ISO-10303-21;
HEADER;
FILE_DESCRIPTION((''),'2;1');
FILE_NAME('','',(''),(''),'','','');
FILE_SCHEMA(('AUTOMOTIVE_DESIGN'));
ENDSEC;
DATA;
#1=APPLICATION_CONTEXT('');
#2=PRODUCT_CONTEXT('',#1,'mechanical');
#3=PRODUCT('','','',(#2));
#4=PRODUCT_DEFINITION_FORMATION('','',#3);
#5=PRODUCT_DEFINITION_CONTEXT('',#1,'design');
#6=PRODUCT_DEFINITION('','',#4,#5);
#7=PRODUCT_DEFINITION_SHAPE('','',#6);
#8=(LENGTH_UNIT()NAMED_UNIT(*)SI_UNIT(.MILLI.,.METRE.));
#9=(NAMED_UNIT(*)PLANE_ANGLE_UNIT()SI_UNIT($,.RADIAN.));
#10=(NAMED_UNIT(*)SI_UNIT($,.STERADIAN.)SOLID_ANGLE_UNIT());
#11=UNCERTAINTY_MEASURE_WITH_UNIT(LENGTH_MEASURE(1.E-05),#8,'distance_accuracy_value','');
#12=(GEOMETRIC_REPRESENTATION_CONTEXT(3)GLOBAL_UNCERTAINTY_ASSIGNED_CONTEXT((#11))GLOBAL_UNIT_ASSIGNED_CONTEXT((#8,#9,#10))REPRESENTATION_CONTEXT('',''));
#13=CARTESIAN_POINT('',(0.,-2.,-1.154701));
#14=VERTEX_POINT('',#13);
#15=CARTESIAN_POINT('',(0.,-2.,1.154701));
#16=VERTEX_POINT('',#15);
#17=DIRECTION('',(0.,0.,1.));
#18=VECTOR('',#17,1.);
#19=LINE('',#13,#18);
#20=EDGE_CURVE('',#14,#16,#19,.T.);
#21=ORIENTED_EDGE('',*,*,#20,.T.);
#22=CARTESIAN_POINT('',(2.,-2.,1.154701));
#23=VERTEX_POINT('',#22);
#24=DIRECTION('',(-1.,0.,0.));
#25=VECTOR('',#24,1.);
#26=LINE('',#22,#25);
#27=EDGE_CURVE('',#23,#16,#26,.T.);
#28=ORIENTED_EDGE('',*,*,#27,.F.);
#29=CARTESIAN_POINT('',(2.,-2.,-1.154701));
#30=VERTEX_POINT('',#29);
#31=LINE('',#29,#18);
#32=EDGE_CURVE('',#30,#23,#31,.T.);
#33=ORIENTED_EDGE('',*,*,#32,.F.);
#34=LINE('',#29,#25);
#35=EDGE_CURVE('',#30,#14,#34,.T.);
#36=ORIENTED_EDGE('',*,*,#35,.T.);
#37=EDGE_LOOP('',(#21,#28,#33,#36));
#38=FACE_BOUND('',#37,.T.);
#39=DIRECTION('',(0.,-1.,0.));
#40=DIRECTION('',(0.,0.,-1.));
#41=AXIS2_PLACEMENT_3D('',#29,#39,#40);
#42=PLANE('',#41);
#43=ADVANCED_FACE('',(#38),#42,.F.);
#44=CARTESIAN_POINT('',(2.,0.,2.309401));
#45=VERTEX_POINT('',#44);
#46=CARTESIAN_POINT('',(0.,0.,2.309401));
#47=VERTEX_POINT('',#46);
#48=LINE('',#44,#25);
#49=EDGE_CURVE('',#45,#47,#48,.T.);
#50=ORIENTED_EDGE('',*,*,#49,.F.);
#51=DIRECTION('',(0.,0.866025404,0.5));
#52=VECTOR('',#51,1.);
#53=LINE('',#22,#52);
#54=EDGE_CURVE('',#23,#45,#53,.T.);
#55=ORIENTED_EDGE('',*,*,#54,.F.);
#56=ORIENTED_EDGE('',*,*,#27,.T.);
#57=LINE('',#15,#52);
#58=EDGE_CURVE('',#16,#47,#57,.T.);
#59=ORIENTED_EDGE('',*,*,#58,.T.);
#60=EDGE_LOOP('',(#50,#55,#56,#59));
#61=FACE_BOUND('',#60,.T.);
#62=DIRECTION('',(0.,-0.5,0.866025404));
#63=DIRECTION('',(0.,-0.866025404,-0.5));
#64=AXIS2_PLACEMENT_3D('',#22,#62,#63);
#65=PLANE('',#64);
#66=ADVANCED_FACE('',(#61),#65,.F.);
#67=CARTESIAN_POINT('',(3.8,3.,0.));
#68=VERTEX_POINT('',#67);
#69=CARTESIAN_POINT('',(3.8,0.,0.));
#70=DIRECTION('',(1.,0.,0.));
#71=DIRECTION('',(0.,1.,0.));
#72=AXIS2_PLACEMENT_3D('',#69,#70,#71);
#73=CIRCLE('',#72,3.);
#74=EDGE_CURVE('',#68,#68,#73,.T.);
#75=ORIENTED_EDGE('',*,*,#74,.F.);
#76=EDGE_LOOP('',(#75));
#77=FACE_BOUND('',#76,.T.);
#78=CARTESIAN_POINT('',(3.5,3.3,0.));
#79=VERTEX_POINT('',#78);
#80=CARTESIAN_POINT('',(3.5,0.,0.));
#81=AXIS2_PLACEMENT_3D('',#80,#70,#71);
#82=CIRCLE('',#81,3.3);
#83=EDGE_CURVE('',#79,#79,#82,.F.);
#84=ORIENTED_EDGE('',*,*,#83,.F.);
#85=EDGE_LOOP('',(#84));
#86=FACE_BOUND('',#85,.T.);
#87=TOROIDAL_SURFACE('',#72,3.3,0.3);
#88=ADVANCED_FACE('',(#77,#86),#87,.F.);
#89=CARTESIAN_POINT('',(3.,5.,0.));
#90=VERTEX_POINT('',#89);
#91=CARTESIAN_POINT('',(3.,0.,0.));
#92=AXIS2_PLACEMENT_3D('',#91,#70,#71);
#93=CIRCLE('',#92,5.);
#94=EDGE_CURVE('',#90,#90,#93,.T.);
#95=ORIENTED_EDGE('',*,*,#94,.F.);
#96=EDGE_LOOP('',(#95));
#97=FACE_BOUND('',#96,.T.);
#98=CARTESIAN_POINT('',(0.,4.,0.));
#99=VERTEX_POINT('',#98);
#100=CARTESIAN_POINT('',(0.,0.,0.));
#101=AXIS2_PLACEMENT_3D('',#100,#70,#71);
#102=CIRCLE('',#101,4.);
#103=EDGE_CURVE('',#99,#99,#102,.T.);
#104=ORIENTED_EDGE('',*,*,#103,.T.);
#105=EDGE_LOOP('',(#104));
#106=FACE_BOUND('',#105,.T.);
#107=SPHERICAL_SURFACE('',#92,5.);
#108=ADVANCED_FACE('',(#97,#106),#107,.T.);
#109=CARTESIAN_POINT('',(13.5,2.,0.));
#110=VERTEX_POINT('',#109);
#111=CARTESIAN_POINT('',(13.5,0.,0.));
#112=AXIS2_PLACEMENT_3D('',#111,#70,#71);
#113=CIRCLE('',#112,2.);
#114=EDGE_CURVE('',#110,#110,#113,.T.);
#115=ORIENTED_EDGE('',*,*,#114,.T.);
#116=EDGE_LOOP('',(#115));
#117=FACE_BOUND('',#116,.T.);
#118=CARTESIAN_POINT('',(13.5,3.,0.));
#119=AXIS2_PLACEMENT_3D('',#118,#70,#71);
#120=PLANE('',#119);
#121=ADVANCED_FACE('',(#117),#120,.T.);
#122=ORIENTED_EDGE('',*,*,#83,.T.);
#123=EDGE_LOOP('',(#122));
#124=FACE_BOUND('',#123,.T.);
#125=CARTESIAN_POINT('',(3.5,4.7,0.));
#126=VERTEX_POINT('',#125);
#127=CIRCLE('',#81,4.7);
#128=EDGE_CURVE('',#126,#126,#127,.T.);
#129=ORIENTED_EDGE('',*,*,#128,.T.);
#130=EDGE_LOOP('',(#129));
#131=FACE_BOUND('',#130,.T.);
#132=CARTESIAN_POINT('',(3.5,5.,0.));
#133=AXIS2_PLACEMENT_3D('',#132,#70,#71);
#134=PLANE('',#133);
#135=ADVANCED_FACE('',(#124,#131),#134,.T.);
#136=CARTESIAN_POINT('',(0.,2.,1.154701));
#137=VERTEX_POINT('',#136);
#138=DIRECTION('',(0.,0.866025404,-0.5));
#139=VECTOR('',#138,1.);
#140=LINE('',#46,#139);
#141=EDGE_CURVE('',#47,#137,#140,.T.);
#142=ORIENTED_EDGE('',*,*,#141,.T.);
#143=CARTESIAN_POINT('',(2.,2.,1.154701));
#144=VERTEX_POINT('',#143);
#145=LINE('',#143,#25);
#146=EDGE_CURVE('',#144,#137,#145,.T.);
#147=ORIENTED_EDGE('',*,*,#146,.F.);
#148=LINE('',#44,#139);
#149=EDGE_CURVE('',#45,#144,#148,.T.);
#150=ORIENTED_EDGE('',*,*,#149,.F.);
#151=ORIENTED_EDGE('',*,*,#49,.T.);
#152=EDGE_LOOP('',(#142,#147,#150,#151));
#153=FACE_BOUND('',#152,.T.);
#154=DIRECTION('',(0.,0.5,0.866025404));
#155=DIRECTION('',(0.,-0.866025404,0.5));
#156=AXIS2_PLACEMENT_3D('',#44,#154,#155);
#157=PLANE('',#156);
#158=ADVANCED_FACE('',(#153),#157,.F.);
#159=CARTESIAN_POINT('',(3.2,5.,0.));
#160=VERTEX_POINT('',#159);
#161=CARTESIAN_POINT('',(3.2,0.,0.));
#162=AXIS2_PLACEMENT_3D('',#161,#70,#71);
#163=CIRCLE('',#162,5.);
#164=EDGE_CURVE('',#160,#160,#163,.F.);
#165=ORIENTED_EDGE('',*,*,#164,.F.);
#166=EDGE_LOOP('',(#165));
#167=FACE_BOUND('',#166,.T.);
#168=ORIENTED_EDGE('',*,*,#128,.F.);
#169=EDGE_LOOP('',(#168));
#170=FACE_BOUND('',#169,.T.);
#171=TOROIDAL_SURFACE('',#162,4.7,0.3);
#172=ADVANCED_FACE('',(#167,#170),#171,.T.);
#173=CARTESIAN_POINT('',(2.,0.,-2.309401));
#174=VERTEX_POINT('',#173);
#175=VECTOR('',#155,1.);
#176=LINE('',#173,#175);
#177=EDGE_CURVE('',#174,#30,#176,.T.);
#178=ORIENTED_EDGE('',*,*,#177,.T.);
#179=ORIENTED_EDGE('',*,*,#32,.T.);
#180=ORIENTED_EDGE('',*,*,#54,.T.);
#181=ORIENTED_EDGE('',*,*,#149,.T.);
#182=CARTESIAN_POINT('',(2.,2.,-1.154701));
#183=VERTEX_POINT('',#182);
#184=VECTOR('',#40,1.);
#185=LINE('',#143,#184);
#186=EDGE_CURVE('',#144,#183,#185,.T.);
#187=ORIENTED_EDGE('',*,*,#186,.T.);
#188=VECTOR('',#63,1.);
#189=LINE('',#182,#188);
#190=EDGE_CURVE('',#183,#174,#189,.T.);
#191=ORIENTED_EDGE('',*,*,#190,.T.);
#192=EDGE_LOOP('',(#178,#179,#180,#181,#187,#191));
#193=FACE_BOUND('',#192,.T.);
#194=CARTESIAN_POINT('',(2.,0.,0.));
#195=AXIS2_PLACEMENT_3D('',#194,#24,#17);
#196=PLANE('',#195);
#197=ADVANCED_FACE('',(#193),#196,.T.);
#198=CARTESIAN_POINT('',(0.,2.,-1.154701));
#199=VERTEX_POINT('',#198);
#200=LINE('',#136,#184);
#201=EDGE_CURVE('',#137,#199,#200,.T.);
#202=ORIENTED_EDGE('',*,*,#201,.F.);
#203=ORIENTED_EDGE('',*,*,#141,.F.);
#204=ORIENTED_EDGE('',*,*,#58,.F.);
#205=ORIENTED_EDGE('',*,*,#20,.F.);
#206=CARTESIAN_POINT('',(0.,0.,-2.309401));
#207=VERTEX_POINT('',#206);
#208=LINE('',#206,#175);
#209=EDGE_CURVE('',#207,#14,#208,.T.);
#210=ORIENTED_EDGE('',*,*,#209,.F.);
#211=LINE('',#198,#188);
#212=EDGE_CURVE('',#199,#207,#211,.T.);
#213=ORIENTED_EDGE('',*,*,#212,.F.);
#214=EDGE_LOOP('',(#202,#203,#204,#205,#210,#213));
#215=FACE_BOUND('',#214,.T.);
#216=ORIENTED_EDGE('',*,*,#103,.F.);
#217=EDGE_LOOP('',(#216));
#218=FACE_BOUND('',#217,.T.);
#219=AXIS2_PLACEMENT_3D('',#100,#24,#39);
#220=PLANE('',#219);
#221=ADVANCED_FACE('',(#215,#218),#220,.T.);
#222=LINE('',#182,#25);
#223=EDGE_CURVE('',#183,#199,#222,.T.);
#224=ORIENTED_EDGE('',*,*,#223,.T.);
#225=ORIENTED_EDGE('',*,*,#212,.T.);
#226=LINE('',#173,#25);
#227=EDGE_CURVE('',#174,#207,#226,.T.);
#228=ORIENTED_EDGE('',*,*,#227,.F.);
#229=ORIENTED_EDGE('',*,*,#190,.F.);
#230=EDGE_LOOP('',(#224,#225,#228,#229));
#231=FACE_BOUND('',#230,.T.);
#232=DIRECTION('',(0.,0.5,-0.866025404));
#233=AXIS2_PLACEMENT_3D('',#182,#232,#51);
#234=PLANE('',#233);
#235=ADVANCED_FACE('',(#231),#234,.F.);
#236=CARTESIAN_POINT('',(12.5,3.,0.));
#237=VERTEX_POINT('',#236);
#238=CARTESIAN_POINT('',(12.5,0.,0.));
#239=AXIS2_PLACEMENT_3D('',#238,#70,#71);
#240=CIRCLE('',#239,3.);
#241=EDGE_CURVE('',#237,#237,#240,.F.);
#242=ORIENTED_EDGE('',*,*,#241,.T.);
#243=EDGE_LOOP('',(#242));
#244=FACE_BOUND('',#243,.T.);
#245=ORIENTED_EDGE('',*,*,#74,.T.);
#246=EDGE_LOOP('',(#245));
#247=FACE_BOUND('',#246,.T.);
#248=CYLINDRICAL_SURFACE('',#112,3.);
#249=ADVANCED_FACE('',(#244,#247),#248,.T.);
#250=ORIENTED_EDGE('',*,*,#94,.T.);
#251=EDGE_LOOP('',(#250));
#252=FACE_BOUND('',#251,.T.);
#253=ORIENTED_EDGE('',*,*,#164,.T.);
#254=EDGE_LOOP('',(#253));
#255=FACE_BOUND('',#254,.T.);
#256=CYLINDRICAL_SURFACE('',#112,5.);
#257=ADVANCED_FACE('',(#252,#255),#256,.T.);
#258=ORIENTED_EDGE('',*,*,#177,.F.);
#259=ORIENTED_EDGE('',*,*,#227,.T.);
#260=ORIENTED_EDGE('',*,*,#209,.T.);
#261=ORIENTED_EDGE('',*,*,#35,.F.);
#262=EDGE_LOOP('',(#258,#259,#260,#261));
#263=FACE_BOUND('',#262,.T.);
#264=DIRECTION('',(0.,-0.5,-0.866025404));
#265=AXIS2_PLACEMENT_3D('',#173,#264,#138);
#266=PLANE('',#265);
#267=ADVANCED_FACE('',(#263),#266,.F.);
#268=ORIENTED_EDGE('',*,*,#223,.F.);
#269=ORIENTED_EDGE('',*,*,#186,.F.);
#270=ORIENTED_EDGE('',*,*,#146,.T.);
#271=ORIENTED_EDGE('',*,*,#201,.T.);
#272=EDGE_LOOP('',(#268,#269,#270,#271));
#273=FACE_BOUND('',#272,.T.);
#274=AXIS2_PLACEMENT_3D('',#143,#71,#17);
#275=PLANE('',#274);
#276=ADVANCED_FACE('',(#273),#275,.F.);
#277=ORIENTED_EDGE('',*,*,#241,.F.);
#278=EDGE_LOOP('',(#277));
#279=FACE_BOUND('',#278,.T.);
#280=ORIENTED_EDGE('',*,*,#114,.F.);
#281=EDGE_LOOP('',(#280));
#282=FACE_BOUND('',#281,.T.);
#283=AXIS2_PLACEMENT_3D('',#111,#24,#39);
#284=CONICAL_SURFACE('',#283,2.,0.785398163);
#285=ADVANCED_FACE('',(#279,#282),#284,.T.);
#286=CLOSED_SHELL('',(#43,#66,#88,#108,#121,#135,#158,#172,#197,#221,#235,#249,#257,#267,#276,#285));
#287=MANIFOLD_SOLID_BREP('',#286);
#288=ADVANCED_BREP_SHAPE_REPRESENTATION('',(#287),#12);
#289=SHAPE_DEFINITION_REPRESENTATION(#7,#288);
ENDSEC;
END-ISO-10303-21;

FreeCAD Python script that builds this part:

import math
import FreeCAD as App
import Part
import Sketcher
Q = App.Units.Quantity


def edges_at(feature, points):
    """Names of the edges that pass closest to the given points."""
    edges = feature.Shape.Edges
    near = lambda p: min(range(len(edges)), key=lambda i: edges[i].distToShape(Part.Vertex(*p))[0])
    return sorted({f"Edge{near(p) + 1}" for p in points})

doc = App.newDocument("Part")
body = doc.addObject("PartDesign::Body", "Body")

sketch1 = body.newObject("Sketcher::SketchObject", "Sketch")
sketch1.AttachmentSupport = (doc.getObject("XY_Plane"), [""])
sketch1.MapMode = "FlatFace"
sketch1.addGeometry(Part.LineSegment(App.Vector(0, 4, 0), App.Vector(0, 0, 0)), False)
sketch1.addGeometry(Part.LineSegment(App.Vector(0, 0, 0), App.Vector(13.5, 0, 0)), False)
sketch1.addGeometry(Part.LineSegment(App.Vector(13.5, 0, 0), App.Vector(13.5, 3, 0)), False)
sketch1.addGeometry(Part.LineSegment(App.Vector(13.5, 3, 0), App.Vector(3.5, 3, 0)), False)
sketch1.addGeometry(Part.LineSegment(App.Vector(3.5, 3, 0), App.Vector(3.5, 5, 0)), False)
sketch1.addGeometry(Part.LineSegment(App.Vector(3.5, 5, 0), App.Vector(3, 5, 0)), False)
sketch1.addGeometry(Part.ArcOfCircle(Part.Circle(App.Vector(3, 0, 0), App.Vector(0, 0, 1), 5), math.radians(90), math.radians(126.869898)), False)
sketch1.addConstraint(Sketcher.Constraint("Coincident", 0, 2, 1, 1))
sketch1.addConstraint(Sketcher.Constraint("Coincident", 1, 2, 2, 1))
sketch1.addConstraint(Sketcher.Constraint("Coincident", 2, 2, 3, 1))
sketch1.addConstraint(Sketcher.Constraint("Coincident", 3, 2, 4, 1))
sketch1.addConstraint(Sketcher.Constraint("Coincident", 4, 2, 5, 1))
sketch1.addConstraint(Sketcher.Constraint("Tangent", 5, 2, 6, 1))
sketch1.addConstraint(Sketcher.Constraint("Coincident", 6, 2, 0, 1))
sketch1.addConstraint(Sketcher.Constraint("Vertical", 0))
sketch1.addConstraint(Sketcher.Constraint("Horizontal", 1))
sketch1.addConstraint(Sketcher.Constraint("Vertical", 2))
sketch1.addConstraint(Sketcher.Constraint("Horizontal", 3))
sketch1.addConstraint(Sketcher.Constraint("Vertical", 4))
sketch1.addConstraint(Sketcher.Constraint("Horizontal", 5))
sketch1.addConstraint(Sketcher.Constraint("Coincident", 0, 2, -1, 1))
sketch1.addConstraint(Sketcher.Constraint("PointOnObject", 6, 3, -1))
sketch1.addConstraint(Sketcher.Constraint("Radius", 6, Q("5 mm")))
sketch1.addConstraint(Sketcher.Constraint("DistanceX", 3, 2, 3, 1, Q("10 mm")))
sketch1.addConstraint(Sketcher.Constraint("DistanceY", 0, 2, 0, 1, Q("4 mm")))
sketch1.addConstraint(Sketcher.Constraint("DistanceY", 2, 1, 2, 2, Q("3 mm")))
sketch1.addConstraint(Sketcher.Constraint("DistanceX", 1, 1, 1, 2, Q("13.5 mm")))
revolution = body.newObject("PartDesign::Revolution", "Revolution")
revolution.Profile = sketch1
revolution.ReferenceAxis = (sketch1, ["H_Axis"])
revolution.Angle = 360

sketch2 = body.newObject("Sketcher::SketchObject", "Sketch001")
sketch2.AttachmentSupport = (doc.getObject("YZ_Plane"), [""])
sketch2.MapMode = "FlatFace"
sketch2.addGeometry(Part.LineSegment(App.Vector(2, 1.154701, 0), App.Vector(2, -1.154701, 0)), False)
sketch2.addGeometry(Part.LineSegment(App.Vector(2, -1.154701, 0), App.Vector(0, -2.309401, 0)), False)
sketch2.addGeometry(Part.LineSegment(App.Vector(0, -2.309401, 0), App.Vector(-2, -1.154701, 0)), False)
sketch2.addGeometry(Part.LineSegment(App.Vector(-2, -1.154701, 0), App.Vector(-2, 1.154701, 0)), False)
sketch2.addGeometry(Part.LineSegment(App.Vector(-2, 1.154701, 0), App.Vector(0, 2.309401, 0)), False)
sketch2.addGeometry(Part.LineSegment(App.Vector(0, 2.309401, 0), App.Vector(2, 1.154701, 0)), False)
sketch2.addConstraint(Sketcher.Constraint("Coincident", 0, 2, 1, 1))
sketch2.addConstraint(Sketcher.Constraint("Coincident", 1, 2, 2, 1))
sketch2.addConstraint(Sketcher.Constraint("Coincident", 2, 2, 3, 1))
sketch2.addConstraint(Sketcher.Constraint("Coincident", 3, 2, 4, 1))
sketch2.addConstraint(Sketcher.Constraint("Coincident", 4, 2, 5, 1))
sketch2.addConstraint(Sketcher.Constraint("Coincident", 5, 2, 0, 1))
sketch2.addConstraint(Sketcher.Constraint("Vertical", 0))
sketch2.addConstraint(Sketcher.Constraint("Vertical", 3))
sketch2.addConstraint(Sketcher.Constraint("Symmetric", 0, 2, 3, 2, -1, 1))
sketch2.addConstraint(Sketcher.Constraint("Symmetric", 1, 2, 4, 2, -1, 1))
sketch2.addConstraint(Sketcher.Constraint("PointOnObject", 1, 2, -2))
sketch2.addConstraint(Sketcher.Constraint("Parallel", 2, 5))
sketch2.addConstraint(Sketcher.Constraint("Horizontal", 0, 2, 2, 2))
sketch2.addConstraint(Sketcher.Constraint("Angle", 1, Q("-150 deg")))
sketch2.addConstraint(Sketcher.Constraint("DistanceX", -1, 1, 0, 2, Q("2 mm")))
sketch2.addConstraint(Sketcher.Constraint("DistanceY", 0, 2, 0, 1, Q("2.309401 mm")))
pocket1 = body.newObject("PartDesign::Pocket", "Pocket")
pocket1.Profile = sketch2
pocket1.Length = 2
pocket1.Reversed = True
doc.recompute()

fillet = body.newObject("PartDesign::Fillet", "Fillet")
fillet.Base = (pocket1, edges_at(pocket1, [(3.5, -3, 0), (3.5, -5, 0)]))
fillet.Radius = 0.3
doc.recompute()

chamfer = body.newObject("PartDesign::Chamfer", "Chamfer")
chamfer.Base = (fillet, edges_at(fillet, [(13.5, -3, 0)]))
chamfer.Size = 1

doc.recompute()
